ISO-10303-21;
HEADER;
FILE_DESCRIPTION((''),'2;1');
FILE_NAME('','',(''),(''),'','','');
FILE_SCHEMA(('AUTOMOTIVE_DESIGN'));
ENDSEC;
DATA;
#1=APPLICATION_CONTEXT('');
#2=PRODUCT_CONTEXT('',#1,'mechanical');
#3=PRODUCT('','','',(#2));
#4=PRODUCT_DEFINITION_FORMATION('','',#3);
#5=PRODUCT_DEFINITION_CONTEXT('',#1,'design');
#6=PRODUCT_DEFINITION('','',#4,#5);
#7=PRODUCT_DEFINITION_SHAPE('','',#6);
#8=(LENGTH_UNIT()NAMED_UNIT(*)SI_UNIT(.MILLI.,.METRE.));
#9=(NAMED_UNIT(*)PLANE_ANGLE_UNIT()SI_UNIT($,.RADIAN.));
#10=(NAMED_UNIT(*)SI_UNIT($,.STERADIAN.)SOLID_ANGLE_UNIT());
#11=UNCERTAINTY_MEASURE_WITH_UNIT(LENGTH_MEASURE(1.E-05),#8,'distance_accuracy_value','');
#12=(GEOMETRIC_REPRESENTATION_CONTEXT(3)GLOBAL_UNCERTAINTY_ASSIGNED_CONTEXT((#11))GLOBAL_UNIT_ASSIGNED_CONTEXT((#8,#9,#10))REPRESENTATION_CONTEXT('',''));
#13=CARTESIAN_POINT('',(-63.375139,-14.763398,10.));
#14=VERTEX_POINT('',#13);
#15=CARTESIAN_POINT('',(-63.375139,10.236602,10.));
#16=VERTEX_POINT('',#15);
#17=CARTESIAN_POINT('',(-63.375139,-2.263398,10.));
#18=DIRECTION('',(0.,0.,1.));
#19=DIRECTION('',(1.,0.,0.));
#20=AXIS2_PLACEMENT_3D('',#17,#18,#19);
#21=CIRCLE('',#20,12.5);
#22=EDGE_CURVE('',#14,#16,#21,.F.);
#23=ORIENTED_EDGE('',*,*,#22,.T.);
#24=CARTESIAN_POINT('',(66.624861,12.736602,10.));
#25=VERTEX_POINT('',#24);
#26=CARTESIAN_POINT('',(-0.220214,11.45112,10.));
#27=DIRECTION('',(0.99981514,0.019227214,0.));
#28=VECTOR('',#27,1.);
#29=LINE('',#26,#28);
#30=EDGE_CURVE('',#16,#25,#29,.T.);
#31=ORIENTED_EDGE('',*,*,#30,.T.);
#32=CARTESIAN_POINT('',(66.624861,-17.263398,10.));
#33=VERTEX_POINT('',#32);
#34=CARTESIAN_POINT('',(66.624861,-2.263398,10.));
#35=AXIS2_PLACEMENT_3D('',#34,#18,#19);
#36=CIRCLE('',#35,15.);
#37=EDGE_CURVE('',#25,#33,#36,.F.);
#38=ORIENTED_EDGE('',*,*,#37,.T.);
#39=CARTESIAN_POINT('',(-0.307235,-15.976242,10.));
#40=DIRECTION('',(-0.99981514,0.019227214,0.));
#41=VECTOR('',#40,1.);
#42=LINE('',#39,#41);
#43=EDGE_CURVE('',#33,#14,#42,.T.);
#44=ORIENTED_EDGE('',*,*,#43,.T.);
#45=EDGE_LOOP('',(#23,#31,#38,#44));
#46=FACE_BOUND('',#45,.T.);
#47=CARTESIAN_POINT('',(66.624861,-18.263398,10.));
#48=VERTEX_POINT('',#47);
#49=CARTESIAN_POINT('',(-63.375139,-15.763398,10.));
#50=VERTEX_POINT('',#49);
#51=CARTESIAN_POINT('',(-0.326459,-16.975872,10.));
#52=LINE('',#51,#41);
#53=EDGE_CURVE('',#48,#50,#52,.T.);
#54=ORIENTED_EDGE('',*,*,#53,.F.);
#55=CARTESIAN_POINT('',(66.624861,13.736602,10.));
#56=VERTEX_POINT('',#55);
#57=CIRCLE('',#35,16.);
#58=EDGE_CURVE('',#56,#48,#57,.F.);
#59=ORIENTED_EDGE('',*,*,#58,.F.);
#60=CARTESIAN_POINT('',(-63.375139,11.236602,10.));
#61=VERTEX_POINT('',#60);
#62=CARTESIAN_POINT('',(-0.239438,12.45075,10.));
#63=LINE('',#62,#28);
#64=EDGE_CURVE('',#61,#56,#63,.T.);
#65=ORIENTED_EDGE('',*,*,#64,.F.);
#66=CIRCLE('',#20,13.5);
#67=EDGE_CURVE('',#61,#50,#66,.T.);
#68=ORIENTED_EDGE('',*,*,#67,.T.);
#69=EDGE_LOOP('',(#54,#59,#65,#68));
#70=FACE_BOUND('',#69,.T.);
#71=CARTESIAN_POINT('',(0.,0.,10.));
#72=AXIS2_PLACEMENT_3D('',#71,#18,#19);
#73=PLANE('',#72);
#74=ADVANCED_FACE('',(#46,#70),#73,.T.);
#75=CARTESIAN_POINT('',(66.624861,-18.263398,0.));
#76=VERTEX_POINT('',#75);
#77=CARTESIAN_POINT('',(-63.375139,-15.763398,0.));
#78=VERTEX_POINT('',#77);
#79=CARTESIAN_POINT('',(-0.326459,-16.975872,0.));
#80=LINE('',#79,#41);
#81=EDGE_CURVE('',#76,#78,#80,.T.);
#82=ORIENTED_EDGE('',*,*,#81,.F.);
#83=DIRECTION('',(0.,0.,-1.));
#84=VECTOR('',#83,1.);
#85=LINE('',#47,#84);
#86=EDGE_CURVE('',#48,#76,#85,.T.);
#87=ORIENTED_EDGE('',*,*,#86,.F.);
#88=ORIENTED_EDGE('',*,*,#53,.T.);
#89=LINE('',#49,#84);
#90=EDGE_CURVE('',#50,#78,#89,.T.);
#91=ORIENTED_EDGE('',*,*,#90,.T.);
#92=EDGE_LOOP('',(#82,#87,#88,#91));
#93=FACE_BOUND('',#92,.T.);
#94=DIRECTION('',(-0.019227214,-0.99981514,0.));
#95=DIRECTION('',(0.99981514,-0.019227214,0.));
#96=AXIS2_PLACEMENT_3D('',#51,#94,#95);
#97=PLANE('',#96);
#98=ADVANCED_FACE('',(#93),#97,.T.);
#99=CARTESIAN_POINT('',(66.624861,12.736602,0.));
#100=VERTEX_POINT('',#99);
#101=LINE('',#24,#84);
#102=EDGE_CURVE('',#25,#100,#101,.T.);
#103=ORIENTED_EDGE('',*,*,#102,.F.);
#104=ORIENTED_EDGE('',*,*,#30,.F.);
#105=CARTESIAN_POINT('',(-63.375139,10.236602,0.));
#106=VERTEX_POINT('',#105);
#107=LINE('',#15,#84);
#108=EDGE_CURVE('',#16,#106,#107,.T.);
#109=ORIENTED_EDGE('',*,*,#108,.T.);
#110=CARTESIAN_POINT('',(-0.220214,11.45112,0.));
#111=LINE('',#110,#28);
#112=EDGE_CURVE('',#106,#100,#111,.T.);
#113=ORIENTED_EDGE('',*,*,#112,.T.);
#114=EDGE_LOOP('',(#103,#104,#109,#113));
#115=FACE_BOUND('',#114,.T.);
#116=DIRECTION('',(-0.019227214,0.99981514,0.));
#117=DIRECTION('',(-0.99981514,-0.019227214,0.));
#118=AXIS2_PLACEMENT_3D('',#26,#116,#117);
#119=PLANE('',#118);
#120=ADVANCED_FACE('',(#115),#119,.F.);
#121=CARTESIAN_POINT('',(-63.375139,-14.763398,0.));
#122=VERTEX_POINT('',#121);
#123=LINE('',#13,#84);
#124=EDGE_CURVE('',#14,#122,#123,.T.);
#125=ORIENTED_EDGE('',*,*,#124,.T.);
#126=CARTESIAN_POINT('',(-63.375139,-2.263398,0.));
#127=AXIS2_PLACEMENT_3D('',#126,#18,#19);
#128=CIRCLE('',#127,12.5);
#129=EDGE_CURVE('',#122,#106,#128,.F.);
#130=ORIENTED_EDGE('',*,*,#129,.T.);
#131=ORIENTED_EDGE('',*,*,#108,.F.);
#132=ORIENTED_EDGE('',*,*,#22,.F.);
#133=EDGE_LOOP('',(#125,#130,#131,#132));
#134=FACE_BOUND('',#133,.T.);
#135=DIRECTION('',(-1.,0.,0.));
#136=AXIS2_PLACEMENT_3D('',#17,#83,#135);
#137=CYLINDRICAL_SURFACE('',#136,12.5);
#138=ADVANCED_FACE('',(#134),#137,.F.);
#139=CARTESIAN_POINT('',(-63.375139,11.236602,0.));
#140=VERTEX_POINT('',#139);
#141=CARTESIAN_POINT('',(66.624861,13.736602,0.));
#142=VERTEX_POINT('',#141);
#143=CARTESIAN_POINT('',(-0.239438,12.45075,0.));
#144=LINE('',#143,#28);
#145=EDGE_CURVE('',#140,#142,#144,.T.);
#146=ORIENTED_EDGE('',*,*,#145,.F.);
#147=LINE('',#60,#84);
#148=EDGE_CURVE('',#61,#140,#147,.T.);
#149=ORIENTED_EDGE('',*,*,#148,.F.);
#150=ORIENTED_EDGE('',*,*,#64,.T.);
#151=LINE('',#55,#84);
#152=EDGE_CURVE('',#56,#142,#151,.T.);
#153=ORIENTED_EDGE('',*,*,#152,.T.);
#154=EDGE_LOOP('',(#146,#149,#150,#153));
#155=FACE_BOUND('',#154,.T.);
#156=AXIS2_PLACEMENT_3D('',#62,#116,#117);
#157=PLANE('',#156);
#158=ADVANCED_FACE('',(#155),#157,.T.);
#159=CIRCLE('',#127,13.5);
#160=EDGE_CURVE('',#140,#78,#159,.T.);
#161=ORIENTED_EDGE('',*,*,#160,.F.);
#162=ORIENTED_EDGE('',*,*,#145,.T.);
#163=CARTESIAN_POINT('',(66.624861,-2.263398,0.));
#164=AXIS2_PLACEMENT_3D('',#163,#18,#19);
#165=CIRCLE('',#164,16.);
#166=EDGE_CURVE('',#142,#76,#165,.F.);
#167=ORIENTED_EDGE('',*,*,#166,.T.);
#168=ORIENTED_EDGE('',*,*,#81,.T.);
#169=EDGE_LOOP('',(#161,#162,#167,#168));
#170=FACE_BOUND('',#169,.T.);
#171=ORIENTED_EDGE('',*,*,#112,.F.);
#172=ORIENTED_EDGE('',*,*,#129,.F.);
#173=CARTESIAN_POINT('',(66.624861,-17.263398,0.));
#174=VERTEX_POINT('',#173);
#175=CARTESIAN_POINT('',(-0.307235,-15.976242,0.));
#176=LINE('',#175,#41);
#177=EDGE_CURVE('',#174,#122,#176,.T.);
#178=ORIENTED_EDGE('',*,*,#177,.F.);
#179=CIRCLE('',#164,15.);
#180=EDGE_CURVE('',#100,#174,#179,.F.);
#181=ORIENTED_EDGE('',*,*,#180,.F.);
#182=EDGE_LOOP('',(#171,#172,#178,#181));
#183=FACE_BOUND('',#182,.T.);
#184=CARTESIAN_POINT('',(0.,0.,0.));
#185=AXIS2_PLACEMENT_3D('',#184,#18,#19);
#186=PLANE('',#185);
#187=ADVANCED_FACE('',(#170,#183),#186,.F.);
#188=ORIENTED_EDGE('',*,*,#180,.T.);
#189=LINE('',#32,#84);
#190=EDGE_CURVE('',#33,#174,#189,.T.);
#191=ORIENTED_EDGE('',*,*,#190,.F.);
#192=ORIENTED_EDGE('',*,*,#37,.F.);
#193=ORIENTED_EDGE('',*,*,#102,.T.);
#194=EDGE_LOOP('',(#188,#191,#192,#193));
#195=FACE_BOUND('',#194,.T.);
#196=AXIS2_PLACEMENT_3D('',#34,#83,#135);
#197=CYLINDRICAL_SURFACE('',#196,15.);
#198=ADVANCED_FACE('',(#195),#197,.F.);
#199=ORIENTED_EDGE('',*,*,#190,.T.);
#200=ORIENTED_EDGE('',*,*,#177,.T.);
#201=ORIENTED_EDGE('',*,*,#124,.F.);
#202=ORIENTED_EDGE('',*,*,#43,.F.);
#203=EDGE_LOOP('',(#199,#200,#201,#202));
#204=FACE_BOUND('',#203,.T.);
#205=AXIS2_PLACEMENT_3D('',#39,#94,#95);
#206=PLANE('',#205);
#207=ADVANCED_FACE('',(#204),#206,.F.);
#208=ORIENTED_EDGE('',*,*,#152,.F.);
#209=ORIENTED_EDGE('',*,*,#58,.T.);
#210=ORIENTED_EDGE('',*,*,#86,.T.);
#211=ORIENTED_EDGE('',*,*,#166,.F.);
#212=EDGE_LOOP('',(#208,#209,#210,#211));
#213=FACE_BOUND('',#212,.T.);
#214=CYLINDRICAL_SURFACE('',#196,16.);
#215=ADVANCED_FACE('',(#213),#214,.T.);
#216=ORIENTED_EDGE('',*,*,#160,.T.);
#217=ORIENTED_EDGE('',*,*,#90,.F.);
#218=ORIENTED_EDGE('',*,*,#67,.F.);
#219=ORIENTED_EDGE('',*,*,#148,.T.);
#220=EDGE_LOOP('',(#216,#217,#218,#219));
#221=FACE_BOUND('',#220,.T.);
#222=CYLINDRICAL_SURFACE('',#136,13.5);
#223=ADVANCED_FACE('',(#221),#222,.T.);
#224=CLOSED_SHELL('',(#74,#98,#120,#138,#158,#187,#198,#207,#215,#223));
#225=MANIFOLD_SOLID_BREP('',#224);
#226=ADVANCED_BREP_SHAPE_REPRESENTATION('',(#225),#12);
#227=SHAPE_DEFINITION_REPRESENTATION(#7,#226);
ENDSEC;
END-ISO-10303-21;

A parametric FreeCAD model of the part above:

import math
import FreeCAD as App
import Part
import Sketcher

V = App.Vector

doc = App.newDocument("Part")
body = doc.addObject("PartDesign::Body", "Body")

sketch1 = doc.addObject("Sketcher::SketchObject", "Sketch")
body.addObject(sketch1)
sketch1.AttachmentSupport = (doc.XY_Plane, [""])
sketch1.MapMode = "FlatFace"
sketch1.addGeometry([
    Part.LineSegment(V(66.624861, 13.736602, 0), V(-63.375139, 11.236602, 0)),
    Part.ArcOfCircle(Part.Circle(V(-63.375139, -2.263398, 0), V(0, 0, 1), 13.5), math.radians(90), math.radians(270)),
    Part.LineSegment(V(-63.375139, -15.763398, 0), V(66.624861, -18.263398, 0)),
    Part.ArcOfCircle(Part.Circle(V(66.624861, -2.263398, 0), V(0, 0, 1), 16), math.radians(-90), math.radians(90)),
    Part.LineSegment(V(-63.375139, 10.236602, 0), V(66.624861, 12.736602, 0)),
    Part.ArcOfCircle(Part.Circle(V(66.624861, -2.263398, 0), V(0, 0, 1), 15), math.radians(-90), math.radians(90)),
    Part.LineSegment(V(66.624861, -17.263398, 0), V(-63.375139, -14.763398, 0)),
    Part.ArcOfCircle(Part.Circle(V(-63.375139, -2.263398, 0), V(0, 0, 1), 12.5), math.radians(90), math.radians(270)),
], False)
sketch1.addConstraint([
    Sketcher.Constraint("Coincident", 0, 2, 1, 1),
    Sketcher.Constraint("Coincident", 1, 2, 2, 1),
    Sketcher.Constraint("Coincident", 2, 2, 3, 1),
    Sketcher.Constraint("Coincident", 3, 2, 0, 1),
    Sketcher.Constraint("Coincident", 4, 2, 5, 2),
    Sketcher.Constraint("Coincident", 5, 1, 6, 1),
    Sketcher.Constraint("Coincident", 6, 2, 7, 2),
    Sketcher.Constraint("Coincident", 7, 1, 4, 1),
    Sketcher.Constraint("Coincident", 5, 3, 3, 3),
    Sketcher.Constraint("Coincident", 7, 3, 1, 3),
    Sketcher.Constraint("Parallel", 0, 4),
    Sketcher.Constraint("Parallel", 2, 6),
    Sketcher.Constraint("Horizontal", 1, 3, 3, 3),
    Sketcher.Constraint("Vertical", 7, 3, 0, 2),
    Sketcher.Constraint("Vertical", 0, 2, 1, 2),
    Sketcher.Constraint("Vertical", 5, 3, 2, 2),
    Sketcher.Constraint("Vertical", 2, 2, 3, 2),
    Sketcher.Constraint("Vertical", 3, 2, 4, 2),
    Sketcher.Constraint("Vertical", 4, 2, 5, 1),
    Sketcher.Constraint("Vertical", 1, 2, 6, 2),
    Sketcher.Constraint("Radius", 3, 16.0),
    Sketcher.Constraint("Radius", 5, 15.0),
    Sketcher.Constraint("Radius", 1, 13.5),
    Sketcher.Constraint("DistanceX", 1, 3, 3, 3, 130.0),
    Sketcher.Constraint("DistanceX", 1, 3, -1, 1, 63.375139),
    Sketcher.Constraint("DistanceY", 1, 3, -1, 1, 2.263398),
])
pad1 = doc.addObject("PartDesign::Pad", "Pad")
body.addObject(pad1)
pad1.Profile = sketch1
pad1.Length = 10

doc.recompute()
